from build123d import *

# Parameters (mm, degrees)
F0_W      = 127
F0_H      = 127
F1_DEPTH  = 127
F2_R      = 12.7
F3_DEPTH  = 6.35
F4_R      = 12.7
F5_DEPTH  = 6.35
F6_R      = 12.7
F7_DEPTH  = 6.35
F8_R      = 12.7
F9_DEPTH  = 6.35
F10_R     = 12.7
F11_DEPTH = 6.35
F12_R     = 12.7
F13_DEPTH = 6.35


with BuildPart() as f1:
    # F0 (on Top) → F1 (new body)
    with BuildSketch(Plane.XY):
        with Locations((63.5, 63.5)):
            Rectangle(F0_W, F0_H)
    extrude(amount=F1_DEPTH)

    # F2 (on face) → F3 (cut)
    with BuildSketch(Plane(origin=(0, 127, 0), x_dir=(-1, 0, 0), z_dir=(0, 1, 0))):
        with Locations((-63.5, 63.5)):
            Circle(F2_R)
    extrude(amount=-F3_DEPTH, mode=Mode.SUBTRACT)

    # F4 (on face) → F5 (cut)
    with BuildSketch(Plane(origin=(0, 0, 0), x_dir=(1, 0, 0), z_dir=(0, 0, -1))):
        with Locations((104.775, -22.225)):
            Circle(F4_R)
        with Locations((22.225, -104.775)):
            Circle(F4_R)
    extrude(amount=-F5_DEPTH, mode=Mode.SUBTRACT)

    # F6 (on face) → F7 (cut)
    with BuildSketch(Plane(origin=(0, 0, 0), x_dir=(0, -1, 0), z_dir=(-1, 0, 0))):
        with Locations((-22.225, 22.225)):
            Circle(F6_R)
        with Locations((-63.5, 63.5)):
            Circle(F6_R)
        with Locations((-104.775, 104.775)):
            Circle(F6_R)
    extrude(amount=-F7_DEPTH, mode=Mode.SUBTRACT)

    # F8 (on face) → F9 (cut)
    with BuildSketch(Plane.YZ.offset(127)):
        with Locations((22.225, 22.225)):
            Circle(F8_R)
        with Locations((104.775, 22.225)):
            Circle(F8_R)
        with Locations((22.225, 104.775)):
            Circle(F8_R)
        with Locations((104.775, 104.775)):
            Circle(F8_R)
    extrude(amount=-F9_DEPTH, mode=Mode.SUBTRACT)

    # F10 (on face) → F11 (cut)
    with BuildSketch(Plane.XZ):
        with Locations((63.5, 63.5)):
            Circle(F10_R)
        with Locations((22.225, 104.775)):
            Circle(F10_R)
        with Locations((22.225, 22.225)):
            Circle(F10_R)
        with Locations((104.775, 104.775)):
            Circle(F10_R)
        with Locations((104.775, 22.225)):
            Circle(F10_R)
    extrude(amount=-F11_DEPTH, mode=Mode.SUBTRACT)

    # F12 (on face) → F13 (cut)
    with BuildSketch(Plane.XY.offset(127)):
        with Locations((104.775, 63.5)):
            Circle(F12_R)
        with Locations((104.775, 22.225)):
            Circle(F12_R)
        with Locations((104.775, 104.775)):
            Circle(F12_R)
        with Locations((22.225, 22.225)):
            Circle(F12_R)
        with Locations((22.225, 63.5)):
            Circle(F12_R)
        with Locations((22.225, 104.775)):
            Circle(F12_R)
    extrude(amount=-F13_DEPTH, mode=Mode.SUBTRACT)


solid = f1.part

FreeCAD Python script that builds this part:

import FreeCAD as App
import Part
import Sketcher
Q = App.Units.Quantity


def add_polygon(sketch, points):
    """Adds a closed chain of lines whose ends are joined by coincident constraints."""
    first, n = sketch.GeometryCount, len(points)
    for a, b in zip(points, points[1:] + points[:1]):
        sketch.addGeometry(Part.LineSegment(App.Vector(*a, 0), App.Vector(*b, 0)), False)
    for i in range(n):
        sketch.addConstraint(Sketcher.Constraint("Coincident", first + i, 2, first + (i + 1) % n, 1))

doc = App.newDocument("Part")
body = doc.addObject("PartDesign::Body", "Body")

sketch1 = body.newObject("Sketcher::SketchObject", "Sketch")
sketch1.AttachmentSupport = (doc.getObject("XY_Plane"), [""])
sketch1.MapMode = "FlatFace"
add_polygon(sketch1, [(0, 127), (0, 0), (127, 0), (127, 127)])
sketch1.addConstraint([
    Sketcher.Constraint("Vertical", 0),
    Sketcher.Constraint("Horizontal", 1),
    Sketcher.Constraint("Vertical", 2),
    Sketcher.Constraint("Horizontal", 3),
    Sketcher.Constraint("Coincident", 0, 2, -1, 1),
    Sketcher.Constraint("Equal", 3, 0),
    Sketcher.Constraint("DistanceX", 1, 1, 1, 2, Q("5 in")),
])
pad1 = body.newObject("PartDesign::Pad", "Pad")
pad1.Profile = sketch1
pad1.Length = Q("5 in")

sketch2 = body.newObject("Sketcher::SketchObject", "Sketch001")
sketch2.AttachmentSupport = (doc.getObject("XZ_Plane"), [""])
sketch2.MapMode = "FlatFace"
sketch2.AttachmentOffset = App.Placement(App.Vector(0, 0, -5 * 25.4), App.Rotation())
sketch2.addGeometry(Part.Circle(App.Vector(64, 64, 0), App.Vector(0, 0, 1), 13), False)
sketch2.addConstraint([
    Sketcher.Constraint("Diameter", 0, Q("1 in")),
    Sketcher.Constraint("DistanceX", -1, 1, 0, 3, Q("2.5 in")),
    Sketcher.Constraint("DistanceY", -1, 1, 0, 3, Q("2.5 in")),
])
pocket1 = body.newObject("PartDesign::Pocket", "Pocket")
pocket1.Profile = sketch2
pocket1.Length = Q("0.25 in")
pocket1.Reversed = True

sketch3 = body.newObject("Sketcher::SketchObject", "Sketch002")
sketch3.AttachmentSupport = (doc.getObject("XY_Plane"), [""])
sketch3.MapMode = "FlatFace"
sketch3.addGeometry([
    Part.Circle(App.Vector(105, 22, 0), App.Vector(0, 0, 1), 13),
    Part.Circle(App.Vector(22, 105, 0), App.Vector(0, 0, 1), 13),
], False)
sketch3.addConstraint([
    Sketcher.Constraint("Equal", 0, 1),
    Sketcher.Constraint("Diameter", 0, Q("1 in")),
    Sketcher.Constraint("DistanceX", 1, 3, 0, 3, Q("3.25 in")),
    Sketcher.Constraint("DistanceY", 0, 3, 1, 3, Q("3.25 in")),
    Sketcher.Constraint("DistanceX", -1, 1, 0, 3, Q("4.125 in")),
    Sketcher.Constraint("DistanceY", -1, 1, 0, 3, Q("0.875 in")),
])
pocket2 = body.newObject("PartDesign::Pocket", "Pocket001")
pocket2.Profile = sketch3
pocket2.Length = Q("0.25 in")
pocket2.Reversed = True

sketch4 = body.newObject("Sketcher::SketchObject", "Sketch003")
sketch4.AttachmentSupport = (doc.getObject("YZ_Plane"), [""])
sketch4.MapMode = "FlatFace"
sketch4.addGeometry([
    Part.Circle(App.Vector(22, 22, 0), App.Vector(0, 0, 1), 13),
    Part.Circle(App.Vector(64, 64, 0), App.Vector(0, 0, 1), 13),
    Part.Circle(App.Vector(105, 105, 0), App.Vector(0, 0, 1), 13),
], False)
sketch4.addConstraint([
    Sketcher.Constraint("Equal", 0, 1),
    Sketcher.Constraint("Equal", 1, 2),
    Sketcher.Constraint("Diameter", 0, Q("1 in")),
    Sketcher.Constraint("DistanceX", -1, 1, 1, 3, Q("2.5 in")),
    Sketcher.Constraint("DistanceY", -1, 1, 1, 3, Q("2.5 in")),
    Sketcher.Constraint("DistanceX", 0, 3, 2, 3, Q("3.25 in")),
    Sketcher.Constraint("DistanceY", 0, 3, 2, 3, Q("3.25 in")),
    Sketcher.Constraint("DistanceX", -1, 1, 0, 3, Q("0.875 in")),
    Sketcher.Constraint("DistanceY", -1, 1, 0, 3, Q("0.875 in")),
])
pocket3 = body.newObject("PartDesign::Pocket", "Pocket002")
pocket3.Profile = sketch4
pocket3.Length = Q("0.25 in")
pocket3.Reversed = True

sketch5 = body.newObject("Sketcher::SketchObject", "Sketch004")
sketch5.AttachmentSupport = (doc.getObject("YZ_Plane"), [""])
sketch5.MapMode = "FlatFace"
sketch5.AttachmentOffset = App.Placement(App.Vector(0, 0, 5 * 25.4), App.Rotation())
sketch5.addGeometry([
    Part.Circle(App.Vector(22, 22, 0), App.Vector(0, 0, 1), 13),
    Part.Circle(App.Vector(105, 22, 0), App.Vector(0, 0, 1), 13),
    Part.Circle(App.Vector(22, 105, 0), App.Vector(0, 0, 1), 13),
    Part.Circle(App.Vector(105, 105, 0), App.Vector(0, 0, 1), 13),
], False)
sketch5.addConstraint([
    Sketcher.Constraint("Equal", 0, 1),
    Sketcher.Constraint("Equal", 1, 2),
    Sketcher.Constraint("Equal", 2, 3),
    Sketcher.Constraint("Horizontal", 0, 3, 1, 3),
    Sketcher.Constraint("Horizontal", 2, 3, 3, 3),
    Sketcher.Constraint("Vertical", 0, 3, 2, 3),
    Sketcher.Constraint("Vertical", 1, 3, 3, 3),
    Sketcher.Constraint("Diameter", 0, Q("1 in")),
    Sketcher.Constraint("DistanceX", 0, 3, 1, 3, Q("3.25 in")),
    Sketcher.Constraint("DistanceY", 0, 3, 2, 3, Q("3.25 in")),
    Sketcher.Constraint("DistanceX", -1, 1, 0, 3, Q("0.875 in")),
    Sketcher.Constraint("DistanceY", -1, 1, 0, 3, Q("0.875 in")),
])
pocket4 = body.newObject("PartDesign::Pocket", "Pocket003")
pocket4.Profile = sketch5
pocket4.Length = Q("0.25 in")

sketch6 = body.newObject("Sketcher::SketchObject", "Sketch005")
sketch6.AttachmentSupport = (doc.getObject("XZ_Plane"), [""])
sketch6.MapMode = "FlatFace"
sketch6.addGeometry([
    Part.Circle(App.Vector(64, 64, 0), App.Vector(0, 0, 1), 13),
    Part.Circle(App.Vector(22, 105, 0), App.Vector(0, 0, 1), 13),
    Part.Circle(App.Vector(22, 22, 0), App.Vector(0, 0, 1), 13),
    Part.Circle(App.Vector(105, 105, 0), App.Vector(0, 0, 1), 13),
    Part.Circle(App.Vector(105, 22, 0), App.Vector(0, 0, 1), 13),
], False)
sketch6.addConstraint([
    Sketcher.Constraint("Equal", 0, 1),
    Sketcher.Constraint("Equal", 1, 2),
    Sketcher.Constraint("Equal", 2, 3),
    Sketcher.Constraint("Equal", 3, 4),
    Sketcher.Constraint("Horizontal", 1, 3, 3, 3),
    Sketcher.Constraint("Horizontal", 2, 3, 4, 3),
    Sketcher.Constraint("Vertical", 1, 3, 2, 3),
    Sketcher.Constraint("Vertical", 3, 3, 4, 3),
    Sketcher.Constraint("Diameter", 0, Q("1 in")),
    Sketcher.Constraint("DistanceX", -1, 1, 0, 3, Q("2.5 in")),
    Sketcher.Constraint("DistanceY", -1, 1, 0, 3, Q("2.5 in")),
    Sketcher.Constraint("DistanceY", 2, 3, 1, 3, Q("3.25 in")),
    Sketcher.Constraint("DistanceX", 1, 3, 3, 3, Q("3.25 in")),
    Sketcher.Constraint("DistanceX", -1, 1, 1, 3, Q("0.875 in")),
    Sketcher.Constraint("DistanceY", -1, 1, 1, 3, Q("4.125 in")),
])
pocket5 = body.newObject("PartDesign::Pocket", "Pocket004")
pocket5.Profile = sketch6
pocket5.Length = Q("0.25 in")

sketch7 = body.newObject("Sketcher::SketchObject", "Sketch006")
sketch7.AttachmentSupport = (doc.getObject("XY_Plane"), [""])
sketch7.MapMode = "FlatFace"
sketch7.AttachmentOffset = App.Placement(App.Vector(0, 0, 5 * 25.4), App.Rotation())
sketch7.addGeometry([
    Part.Circle(App.Vector(105, 64, 0), App.Vector(0, 0, 1), 13),
    Part.Circle(App.Vector(105, 22, 0), App.Vector(0, 0, 1), 13),
    Part.Circle(App.Vector(105, 105, 0), App.Vector(0, 0, 1), 13),
    Part.Circle(App.Vector(22, 22, 0), App.Vector(0, 0, 1), 13),
    Part.Circle(App.Vector(22, 64, 0), App.Vector(0, 0, 1), 13),
    Part.Circle(App.Vector(22, 105, 0), App.Vector(0, 0, 1), 13),
], False)
sketch7.addConstraint([
    Sketcher.Constraint("Equal", 0, 1),
    Sketcher.Constraint("Equal", 1, 2),
    Sketcher.Constraint("Equal", 2, 3),
    Sketcher.Constraint("Equal", 3, 4),
    Sketcher.Constraint("Equal", 4, 5),
    Sketcher.Constraint("Horizontal", 1, 3, 3, 3),
    Sketcher.Constraint("Horizontal", 0, 3, 4, 3),
    Sketcher.Constraint("Horizontal", 2, 3, 5, 3),
    Sketcher.Constraint("Vertical", 0, 3, 1, 3),
    Sketcher.Constraint("Vertical", 1, 3, 2, 3),
    Sketcher.Constraint("Vertical", 3, 3, 4, 3),
    Sketcher.Constraint("Vertical", 4, 3, 5, 3),
    Sketcher.Constraint("Diameter", 0, Q("1 in")),
    Sketcher.Constraint("DistanceY", -1, 1, 0, 3, Q("2.5 in")),
    Sketcher.Constraint("DistanceY", 1, 3, 2, 3, Q("3.25 in")),
    Sketcher.Constraint("DistanceX", 3, 3, 1, 3, Q("3.25 in")),
    Sketcher.Constraint("DistanceX", -1, 1, 0, 3, Q("4.125 in")),
    Sketcher.Constraint("DistanceY", -1, 1, 1, 3, Q("0.875 in")),
])
pocket6 = body.newObject("PartDesign::Pocket", "Pocket005")
pocket6.Profile = sketch7
pocket6.Length = Q("0.25 in")

doc.recompute()
